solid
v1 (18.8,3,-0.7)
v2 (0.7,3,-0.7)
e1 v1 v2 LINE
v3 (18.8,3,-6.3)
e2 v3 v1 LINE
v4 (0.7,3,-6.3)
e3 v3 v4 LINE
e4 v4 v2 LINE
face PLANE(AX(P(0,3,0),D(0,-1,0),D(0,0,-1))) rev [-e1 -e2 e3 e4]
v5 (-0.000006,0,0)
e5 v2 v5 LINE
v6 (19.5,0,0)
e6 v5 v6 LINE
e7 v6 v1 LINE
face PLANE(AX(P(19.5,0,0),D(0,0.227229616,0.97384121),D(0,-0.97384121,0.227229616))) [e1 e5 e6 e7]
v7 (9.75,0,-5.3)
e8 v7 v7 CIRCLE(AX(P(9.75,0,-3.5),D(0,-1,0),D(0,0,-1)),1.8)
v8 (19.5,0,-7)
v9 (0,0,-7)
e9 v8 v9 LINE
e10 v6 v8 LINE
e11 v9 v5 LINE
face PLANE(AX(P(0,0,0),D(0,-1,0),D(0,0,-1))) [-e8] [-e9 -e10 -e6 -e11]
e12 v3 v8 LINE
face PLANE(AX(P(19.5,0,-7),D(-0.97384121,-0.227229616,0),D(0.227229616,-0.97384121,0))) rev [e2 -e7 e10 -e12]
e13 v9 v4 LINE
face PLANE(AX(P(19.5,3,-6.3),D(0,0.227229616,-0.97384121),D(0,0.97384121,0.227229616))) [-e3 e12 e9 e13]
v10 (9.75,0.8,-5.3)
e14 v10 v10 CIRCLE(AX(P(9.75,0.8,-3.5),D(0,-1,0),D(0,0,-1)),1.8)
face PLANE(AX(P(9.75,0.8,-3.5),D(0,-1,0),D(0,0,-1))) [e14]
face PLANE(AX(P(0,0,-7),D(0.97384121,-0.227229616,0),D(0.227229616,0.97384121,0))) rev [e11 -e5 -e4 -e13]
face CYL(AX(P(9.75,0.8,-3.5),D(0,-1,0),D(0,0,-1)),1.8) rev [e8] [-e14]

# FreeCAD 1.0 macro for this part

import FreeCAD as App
import Part
import Sketcher


def add_polygon(sketch, points):
    """Adds a closed chain of lines whose ends are joined by coincident constraints."""
    first, n = sketch.GeometryCount, len(points)
    for a, b in zip(points, points[1:] + points[:1]):
        sketch.addGeometry(Part.LineSegment(App.Vector(*a, 0), App.Vector(*b, 0)), False)
    for i in range(n):
        sketch.addConstraint(Sketcher.Constraint("Coincident", first + i, 2, first + (i + 1) % n, 1))

doc = App.newDocument("Part")
params = doc.addObject("Spreadsheet::Sheet", "Params")
for row, (alias, value) in enumerate([
    ("sketch1_height", "7 mm"),
    ("sketch1_width", "19.5 mm"),
    ("pad1_length", "3 mm"),
    ("sketch2_height", "3 mm"),
    ("sketch2_width", "0.7 mm"),
    ("pocket1_length", "7 mm"),
    ("sketch3_width", "3 mm"),
    ("sketch3_height", "0.7 mm"),
    ("sketch4_diameter", "3.6 mm"),
    ("pocket3_length", "0.8 mm"),
], start=1):
    params.set(f"A{row}", alias)
    params.set(f"B{row}", "=" + value)
    params.setAlias(f"B{row}", alias)

body = doc.addObject("PartDesign::Body", "Body")

sketch1 = doc.addObject("Sketcher::SketchObject", "Sketch")
body.addObject(sketch1)
sketch1.AttachmentSupport = (doc.XZ_Plane, [""])
sketch1.MapMode = "FlatFace"
add_polygon(sketch1, [(0, -7), (0, 0), (19.5, 0), (19.5, -7)])
sketch1.addConstraint([
    Sketcher.Constraint("Vertical", 0),
    Sketcher.Constraint("Horizontal", 1),
    Sketcher.Constraint("Vertical", 2),
    Sketcher.Constraint("Horizontal", 3),
    Sketcher.Constraint("Coincident", 0, 2, -1, 1),
    Sketcher.Constraint("DistanceY", 0, 1, 0, 2, 7.0),
    Sketcher.Constraint("DistanceX", 1, 1, 1, 2, 19.5),
])
sketch1.setExpression("Constraints[9]", "Params.sketch1_height")
sketch1.setExpression("Constraints[10]", "Params.sketch1_width")
pad1 = doc.addObject("PartDesign::Pad", "Pad")
body.addObject(pad1)
pad1.Profile = sketch1
pad1.setExpression("Length", "Params.pad1_length")
pad1.Reversed = True

sketch2 = doc.addObject("Sketcher::SketchObject", "Sketch001")
body.addObject(sketch2)
sketch2.AttachmentSupport = (doc.XY_Plane, [""])
sketch2.MapMode = "FlatFace"
add_polygon(sketch2, [(0, 0), (0.7, 3), (0, 3)])
add_polygon(sketch2, [(18.8, 3), (19.5, 0), (19.5, 3)])
sketch2.addConstraint([
    Sketcher.Constraint("Horizontal", 1),
    Sketcher.Constraint("Vertical", 2),
    Sketcher.Constraint("Vertical", 4),
    Sketcher.Constraint("Horizontal", 5),
    Sketcher.Constraint("Coincident", 2, 2, -1, 1),
    Sketcher.Constraint("PointOnObject", 3, 2, -1),
    Sketcher.Constraint("Horizontal", 1, 2, 4, 2),
    Sketcher.Constraint("Equal", 1, 5),
    Sketcher.Constraint("DistanceY", 2, 2, 2, 1, 3.0),
    Sketcher.Constraint("DistanceX", 1, 2, 1, 1, 0.7),
    Sketcher.Constraint("DistanceX", -1, 1, 3, 2, 19.5),
])
sketch2.setExpression("Constraints[14]", "Params.sketch2_height")
sketch2.setExpression("Constraints[15]", "Params.sketch2_width")
pocket1 = doc.addObject("PartDesign::Pocket", "Pocket")
body.addObject(pocket1)
pocket1.Profile = sketch2
pocket1.setExpression("Length", "Params.pocket1_length")

sketch3 = doc.addObject("Sketcher::SketchObject", "Sketch002")
body.addObject(sketch3)
sketch3.AttachmentSupport = (doc.YZ_Plane, [""])
sketch3.MapMode = "FlatFace"
add_polygon(sketch3, [(0, 0), (3, -0.7), (3, 0)])
add_polygon(sketch3, [(3, -7), (3, -6.3), (0, -7)])
sketch3.addConstraint([
    Sketcher.Constraint("Vertical", 1),
    Sketcher.Constraint("Horizontal", 2),
    Sketcher.Constraint("Vertical", 3),
    Sketcher.Constraint("Horizontal", 5),
    Sketcher.Constraint("Coincident", 2, 2, -1, 1),
    Sketcher.Constraint("PointOnObject", 4, 2, -2),
    Sketcher.Constraint("Vertical", 1, 2, 3, 2),
    Sketcher.Constraint("Equal", 1, 3),
    Sketcher.Constraint("DistanceX", 2, 2, 2, 1, 3.0),
    Sketcher.Constraint("DistanceY", 1, 1, 1, 2, 0.7),
    Sketcher.Constraint("DistanceY", 4, 2, -1, 1, 7.0),
])
sketch3.setExpression("Constraints[14]", "Params.sketch3_width")
sketch3.setExpression("Constraints[15]", "Params.sketch3_height")
pocket2 = doc.addObject("PartDesign::Pocket", "Pocket001")
body.addObject(pocket2)
pocket2.Profile = sketch3
pocket2.Type = "ThroughAll"
pocket2.Midplane = True

sketch4 = doc.addObject("Sketcher::SketchObject", "Sketch003")
body.addObject(sketch4)
sketch4.AttachmentSupport = (doc.XZ_Plane, [""])
sketch4.MapMode = "FlatFace"
sketch4.addGeometry(Part.Circle(App.Vector(9.75, -3.5, 0), App.Vector(0, 0, 1), 1.8), False)
sketch4.addConstraint([
    Sketcher.Constraint("Diameter", 0, 3.6),
    Sketcher.Constraint("DistanceY", 0, 3, -1, 1, 3.5),
    Sketcher.Constraint("DistanceX", -1, 1, 0, 3, 9.75),
])
sketch4.setExpression("Constraints[0]", "Params.sketch4_diameter")
pocket3 = doc.addObject("PartDesign::Pocket", "Pocket002")
body.addObject(pocket3)
pocket3.Profile = sketch4
pocket3.setExpression("Length", "Params.pocket3_length")

doc.recompute()
